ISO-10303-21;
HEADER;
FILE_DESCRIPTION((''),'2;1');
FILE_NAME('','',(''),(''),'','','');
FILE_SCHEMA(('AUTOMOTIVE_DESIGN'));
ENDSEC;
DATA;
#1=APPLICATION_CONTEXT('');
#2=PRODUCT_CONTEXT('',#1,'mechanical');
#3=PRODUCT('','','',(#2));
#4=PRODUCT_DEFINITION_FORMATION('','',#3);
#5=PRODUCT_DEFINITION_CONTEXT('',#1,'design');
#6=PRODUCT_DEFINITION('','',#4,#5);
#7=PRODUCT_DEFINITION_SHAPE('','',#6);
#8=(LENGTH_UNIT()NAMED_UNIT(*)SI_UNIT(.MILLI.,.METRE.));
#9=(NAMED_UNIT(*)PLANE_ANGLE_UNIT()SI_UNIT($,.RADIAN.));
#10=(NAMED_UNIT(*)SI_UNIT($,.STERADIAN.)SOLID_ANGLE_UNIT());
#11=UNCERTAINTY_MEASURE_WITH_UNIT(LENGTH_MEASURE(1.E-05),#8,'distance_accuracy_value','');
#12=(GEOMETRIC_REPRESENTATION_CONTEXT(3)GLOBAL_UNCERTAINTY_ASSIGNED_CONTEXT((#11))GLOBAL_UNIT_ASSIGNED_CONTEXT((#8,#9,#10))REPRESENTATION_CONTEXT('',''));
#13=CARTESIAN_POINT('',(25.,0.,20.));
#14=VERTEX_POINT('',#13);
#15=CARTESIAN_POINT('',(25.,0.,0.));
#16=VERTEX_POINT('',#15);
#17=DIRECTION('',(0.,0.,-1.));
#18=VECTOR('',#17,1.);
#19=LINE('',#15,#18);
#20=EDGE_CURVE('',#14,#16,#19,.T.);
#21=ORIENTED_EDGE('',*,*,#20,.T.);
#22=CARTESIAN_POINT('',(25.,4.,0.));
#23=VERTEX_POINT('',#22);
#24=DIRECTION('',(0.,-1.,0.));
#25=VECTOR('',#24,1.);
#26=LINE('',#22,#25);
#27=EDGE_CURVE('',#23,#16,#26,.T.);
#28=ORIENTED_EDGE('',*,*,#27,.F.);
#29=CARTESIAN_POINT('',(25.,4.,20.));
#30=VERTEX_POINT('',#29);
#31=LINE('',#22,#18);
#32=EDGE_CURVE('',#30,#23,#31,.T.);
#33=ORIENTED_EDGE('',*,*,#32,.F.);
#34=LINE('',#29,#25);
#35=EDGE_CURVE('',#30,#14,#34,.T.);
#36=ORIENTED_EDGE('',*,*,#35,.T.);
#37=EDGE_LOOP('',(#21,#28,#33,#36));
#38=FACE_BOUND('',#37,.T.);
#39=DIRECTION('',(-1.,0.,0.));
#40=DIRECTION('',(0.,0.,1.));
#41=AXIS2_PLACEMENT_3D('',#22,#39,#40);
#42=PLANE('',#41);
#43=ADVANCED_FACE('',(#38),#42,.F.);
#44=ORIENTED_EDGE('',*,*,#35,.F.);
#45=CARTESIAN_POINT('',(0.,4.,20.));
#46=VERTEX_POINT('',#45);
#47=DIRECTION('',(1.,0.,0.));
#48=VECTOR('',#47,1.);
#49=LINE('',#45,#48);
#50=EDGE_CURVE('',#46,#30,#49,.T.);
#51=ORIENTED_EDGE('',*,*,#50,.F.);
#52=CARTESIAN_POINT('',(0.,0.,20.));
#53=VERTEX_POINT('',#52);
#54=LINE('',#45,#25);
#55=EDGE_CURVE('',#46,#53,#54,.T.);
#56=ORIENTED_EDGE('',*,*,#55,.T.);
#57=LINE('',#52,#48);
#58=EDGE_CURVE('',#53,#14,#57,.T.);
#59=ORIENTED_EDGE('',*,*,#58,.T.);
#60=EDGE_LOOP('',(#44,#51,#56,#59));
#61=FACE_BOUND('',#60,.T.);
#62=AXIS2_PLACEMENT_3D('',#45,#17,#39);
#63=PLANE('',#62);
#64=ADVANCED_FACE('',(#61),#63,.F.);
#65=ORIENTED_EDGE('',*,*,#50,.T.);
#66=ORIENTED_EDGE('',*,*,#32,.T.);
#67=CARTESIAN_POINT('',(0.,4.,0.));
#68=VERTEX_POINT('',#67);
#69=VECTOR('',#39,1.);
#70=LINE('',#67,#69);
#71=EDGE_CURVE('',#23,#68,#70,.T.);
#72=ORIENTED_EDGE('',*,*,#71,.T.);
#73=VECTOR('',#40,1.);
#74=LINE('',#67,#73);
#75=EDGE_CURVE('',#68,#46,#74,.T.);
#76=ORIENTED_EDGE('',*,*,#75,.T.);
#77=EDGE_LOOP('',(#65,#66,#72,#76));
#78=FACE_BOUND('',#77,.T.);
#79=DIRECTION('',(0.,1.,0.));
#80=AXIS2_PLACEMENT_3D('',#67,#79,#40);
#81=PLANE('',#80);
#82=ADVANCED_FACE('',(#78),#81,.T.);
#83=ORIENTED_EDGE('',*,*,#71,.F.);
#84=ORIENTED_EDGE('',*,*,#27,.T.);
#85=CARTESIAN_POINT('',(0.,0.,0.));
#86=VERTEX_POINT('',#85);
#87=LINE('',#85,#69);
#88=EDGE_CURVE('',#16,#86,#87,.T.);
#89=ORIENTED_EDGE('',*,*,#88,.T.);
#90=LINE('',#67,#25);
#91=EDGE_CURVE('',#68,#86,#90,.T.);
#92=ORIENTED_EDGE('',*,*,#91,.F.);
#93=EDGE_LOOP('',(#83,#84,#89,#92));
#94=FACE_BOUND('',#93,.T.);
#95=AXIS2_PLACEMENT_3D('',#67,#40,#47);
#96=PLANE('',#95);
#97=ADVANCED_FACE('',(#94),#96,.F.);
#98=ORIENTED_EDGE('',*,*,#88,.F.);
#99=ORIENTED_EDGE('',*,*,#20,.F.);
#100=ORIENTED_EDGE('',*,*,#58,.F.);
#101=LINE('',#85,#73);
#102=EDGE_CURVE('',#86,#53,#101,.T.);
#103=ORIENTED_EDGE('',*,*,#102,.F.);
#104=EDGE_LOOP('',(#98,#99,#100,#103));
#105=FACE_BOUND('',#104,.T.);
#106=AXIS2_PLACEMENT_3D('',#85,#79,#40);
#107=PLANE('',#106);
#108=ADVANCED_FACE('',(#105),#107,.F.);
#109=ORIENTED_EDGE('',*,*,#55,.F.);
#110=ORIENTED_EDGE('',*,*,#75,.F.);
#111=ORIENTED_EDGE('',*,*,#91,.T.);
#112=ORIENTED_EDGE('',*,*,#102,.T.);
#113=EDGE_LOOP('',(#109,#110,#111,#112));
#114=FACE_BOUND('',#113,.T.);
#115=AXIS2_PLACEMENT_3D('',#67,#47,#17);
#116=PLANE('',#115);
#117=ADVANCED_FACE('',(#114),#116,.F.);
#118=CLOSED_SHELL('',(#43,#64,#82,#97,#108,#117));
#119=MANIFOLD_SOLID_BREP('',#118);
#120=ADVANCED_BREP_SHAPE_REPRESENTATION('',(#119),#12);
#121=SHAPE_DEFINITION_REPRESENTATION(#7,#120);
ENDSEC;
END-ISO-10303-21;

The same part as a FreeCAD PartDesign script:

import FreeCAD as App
import Part
import Sketcher

V = App.Vector
Q = App.Units.Quantity

doc = App.newDocument("Part")
body = doc.addObject("PartDesign::Body", "Body")

# Sketch on XZ plane
sketch1 = body.newObject("Sketcher::SketchObject", "Sketch")
sketch1.AttachmentSupport = (doc.getObject("XZ_Plane"), [""])
sketch1.MapMode = "FlatFace"
sketch1.addGeometry([
    Part.LineSegment(V(0, 0, 0), V(0, 20, 0)),
    Part.LineSegment(V(0, 20, 0), V(25, 20, 0)),
    Part.LineSegment(V(25, 20, 0), V(25, 0, 0)),
    Part.LineSegment(V(25, 0, 0), V(0, 0, 0)),
], False)
sketch1.addConstraint([
    Sketcher.Constraint("Coincident", 0, 2, 1, 1),
    Sketcher.Constraint("Coincident", 1, 2, 2, 1),
    Sketcher.Constraint("Coincident", 2, 2, 3, 1),
    Sketcher.Constraint("Coincident", 3, 2, 0, 1),
    Sketcher.Constraint("Vertical", 0),
    Sketcher.Constraint("Horizontal", 1),
    Sketcher.Constraint("Vertical", 2),
    Sketcher.Constraint("Horizontal", 3),
    Sketcher.Constraint("Coincident", 3, 2, -1, 1),
    Sketcher.Constraint("DistanceX", 1, 1, 1, 2, Q("25 mm")),
    Sketcher.Constraint("DistanceY", 0, 1, 0, 2, Q("20 mm")),
])
pad1 = body.newObject("PartDesign::Pad", "Pad")
pad1.Profile = sketch1
pad1.Length = 4
pad1.Reversed = True

doc.recompute()
